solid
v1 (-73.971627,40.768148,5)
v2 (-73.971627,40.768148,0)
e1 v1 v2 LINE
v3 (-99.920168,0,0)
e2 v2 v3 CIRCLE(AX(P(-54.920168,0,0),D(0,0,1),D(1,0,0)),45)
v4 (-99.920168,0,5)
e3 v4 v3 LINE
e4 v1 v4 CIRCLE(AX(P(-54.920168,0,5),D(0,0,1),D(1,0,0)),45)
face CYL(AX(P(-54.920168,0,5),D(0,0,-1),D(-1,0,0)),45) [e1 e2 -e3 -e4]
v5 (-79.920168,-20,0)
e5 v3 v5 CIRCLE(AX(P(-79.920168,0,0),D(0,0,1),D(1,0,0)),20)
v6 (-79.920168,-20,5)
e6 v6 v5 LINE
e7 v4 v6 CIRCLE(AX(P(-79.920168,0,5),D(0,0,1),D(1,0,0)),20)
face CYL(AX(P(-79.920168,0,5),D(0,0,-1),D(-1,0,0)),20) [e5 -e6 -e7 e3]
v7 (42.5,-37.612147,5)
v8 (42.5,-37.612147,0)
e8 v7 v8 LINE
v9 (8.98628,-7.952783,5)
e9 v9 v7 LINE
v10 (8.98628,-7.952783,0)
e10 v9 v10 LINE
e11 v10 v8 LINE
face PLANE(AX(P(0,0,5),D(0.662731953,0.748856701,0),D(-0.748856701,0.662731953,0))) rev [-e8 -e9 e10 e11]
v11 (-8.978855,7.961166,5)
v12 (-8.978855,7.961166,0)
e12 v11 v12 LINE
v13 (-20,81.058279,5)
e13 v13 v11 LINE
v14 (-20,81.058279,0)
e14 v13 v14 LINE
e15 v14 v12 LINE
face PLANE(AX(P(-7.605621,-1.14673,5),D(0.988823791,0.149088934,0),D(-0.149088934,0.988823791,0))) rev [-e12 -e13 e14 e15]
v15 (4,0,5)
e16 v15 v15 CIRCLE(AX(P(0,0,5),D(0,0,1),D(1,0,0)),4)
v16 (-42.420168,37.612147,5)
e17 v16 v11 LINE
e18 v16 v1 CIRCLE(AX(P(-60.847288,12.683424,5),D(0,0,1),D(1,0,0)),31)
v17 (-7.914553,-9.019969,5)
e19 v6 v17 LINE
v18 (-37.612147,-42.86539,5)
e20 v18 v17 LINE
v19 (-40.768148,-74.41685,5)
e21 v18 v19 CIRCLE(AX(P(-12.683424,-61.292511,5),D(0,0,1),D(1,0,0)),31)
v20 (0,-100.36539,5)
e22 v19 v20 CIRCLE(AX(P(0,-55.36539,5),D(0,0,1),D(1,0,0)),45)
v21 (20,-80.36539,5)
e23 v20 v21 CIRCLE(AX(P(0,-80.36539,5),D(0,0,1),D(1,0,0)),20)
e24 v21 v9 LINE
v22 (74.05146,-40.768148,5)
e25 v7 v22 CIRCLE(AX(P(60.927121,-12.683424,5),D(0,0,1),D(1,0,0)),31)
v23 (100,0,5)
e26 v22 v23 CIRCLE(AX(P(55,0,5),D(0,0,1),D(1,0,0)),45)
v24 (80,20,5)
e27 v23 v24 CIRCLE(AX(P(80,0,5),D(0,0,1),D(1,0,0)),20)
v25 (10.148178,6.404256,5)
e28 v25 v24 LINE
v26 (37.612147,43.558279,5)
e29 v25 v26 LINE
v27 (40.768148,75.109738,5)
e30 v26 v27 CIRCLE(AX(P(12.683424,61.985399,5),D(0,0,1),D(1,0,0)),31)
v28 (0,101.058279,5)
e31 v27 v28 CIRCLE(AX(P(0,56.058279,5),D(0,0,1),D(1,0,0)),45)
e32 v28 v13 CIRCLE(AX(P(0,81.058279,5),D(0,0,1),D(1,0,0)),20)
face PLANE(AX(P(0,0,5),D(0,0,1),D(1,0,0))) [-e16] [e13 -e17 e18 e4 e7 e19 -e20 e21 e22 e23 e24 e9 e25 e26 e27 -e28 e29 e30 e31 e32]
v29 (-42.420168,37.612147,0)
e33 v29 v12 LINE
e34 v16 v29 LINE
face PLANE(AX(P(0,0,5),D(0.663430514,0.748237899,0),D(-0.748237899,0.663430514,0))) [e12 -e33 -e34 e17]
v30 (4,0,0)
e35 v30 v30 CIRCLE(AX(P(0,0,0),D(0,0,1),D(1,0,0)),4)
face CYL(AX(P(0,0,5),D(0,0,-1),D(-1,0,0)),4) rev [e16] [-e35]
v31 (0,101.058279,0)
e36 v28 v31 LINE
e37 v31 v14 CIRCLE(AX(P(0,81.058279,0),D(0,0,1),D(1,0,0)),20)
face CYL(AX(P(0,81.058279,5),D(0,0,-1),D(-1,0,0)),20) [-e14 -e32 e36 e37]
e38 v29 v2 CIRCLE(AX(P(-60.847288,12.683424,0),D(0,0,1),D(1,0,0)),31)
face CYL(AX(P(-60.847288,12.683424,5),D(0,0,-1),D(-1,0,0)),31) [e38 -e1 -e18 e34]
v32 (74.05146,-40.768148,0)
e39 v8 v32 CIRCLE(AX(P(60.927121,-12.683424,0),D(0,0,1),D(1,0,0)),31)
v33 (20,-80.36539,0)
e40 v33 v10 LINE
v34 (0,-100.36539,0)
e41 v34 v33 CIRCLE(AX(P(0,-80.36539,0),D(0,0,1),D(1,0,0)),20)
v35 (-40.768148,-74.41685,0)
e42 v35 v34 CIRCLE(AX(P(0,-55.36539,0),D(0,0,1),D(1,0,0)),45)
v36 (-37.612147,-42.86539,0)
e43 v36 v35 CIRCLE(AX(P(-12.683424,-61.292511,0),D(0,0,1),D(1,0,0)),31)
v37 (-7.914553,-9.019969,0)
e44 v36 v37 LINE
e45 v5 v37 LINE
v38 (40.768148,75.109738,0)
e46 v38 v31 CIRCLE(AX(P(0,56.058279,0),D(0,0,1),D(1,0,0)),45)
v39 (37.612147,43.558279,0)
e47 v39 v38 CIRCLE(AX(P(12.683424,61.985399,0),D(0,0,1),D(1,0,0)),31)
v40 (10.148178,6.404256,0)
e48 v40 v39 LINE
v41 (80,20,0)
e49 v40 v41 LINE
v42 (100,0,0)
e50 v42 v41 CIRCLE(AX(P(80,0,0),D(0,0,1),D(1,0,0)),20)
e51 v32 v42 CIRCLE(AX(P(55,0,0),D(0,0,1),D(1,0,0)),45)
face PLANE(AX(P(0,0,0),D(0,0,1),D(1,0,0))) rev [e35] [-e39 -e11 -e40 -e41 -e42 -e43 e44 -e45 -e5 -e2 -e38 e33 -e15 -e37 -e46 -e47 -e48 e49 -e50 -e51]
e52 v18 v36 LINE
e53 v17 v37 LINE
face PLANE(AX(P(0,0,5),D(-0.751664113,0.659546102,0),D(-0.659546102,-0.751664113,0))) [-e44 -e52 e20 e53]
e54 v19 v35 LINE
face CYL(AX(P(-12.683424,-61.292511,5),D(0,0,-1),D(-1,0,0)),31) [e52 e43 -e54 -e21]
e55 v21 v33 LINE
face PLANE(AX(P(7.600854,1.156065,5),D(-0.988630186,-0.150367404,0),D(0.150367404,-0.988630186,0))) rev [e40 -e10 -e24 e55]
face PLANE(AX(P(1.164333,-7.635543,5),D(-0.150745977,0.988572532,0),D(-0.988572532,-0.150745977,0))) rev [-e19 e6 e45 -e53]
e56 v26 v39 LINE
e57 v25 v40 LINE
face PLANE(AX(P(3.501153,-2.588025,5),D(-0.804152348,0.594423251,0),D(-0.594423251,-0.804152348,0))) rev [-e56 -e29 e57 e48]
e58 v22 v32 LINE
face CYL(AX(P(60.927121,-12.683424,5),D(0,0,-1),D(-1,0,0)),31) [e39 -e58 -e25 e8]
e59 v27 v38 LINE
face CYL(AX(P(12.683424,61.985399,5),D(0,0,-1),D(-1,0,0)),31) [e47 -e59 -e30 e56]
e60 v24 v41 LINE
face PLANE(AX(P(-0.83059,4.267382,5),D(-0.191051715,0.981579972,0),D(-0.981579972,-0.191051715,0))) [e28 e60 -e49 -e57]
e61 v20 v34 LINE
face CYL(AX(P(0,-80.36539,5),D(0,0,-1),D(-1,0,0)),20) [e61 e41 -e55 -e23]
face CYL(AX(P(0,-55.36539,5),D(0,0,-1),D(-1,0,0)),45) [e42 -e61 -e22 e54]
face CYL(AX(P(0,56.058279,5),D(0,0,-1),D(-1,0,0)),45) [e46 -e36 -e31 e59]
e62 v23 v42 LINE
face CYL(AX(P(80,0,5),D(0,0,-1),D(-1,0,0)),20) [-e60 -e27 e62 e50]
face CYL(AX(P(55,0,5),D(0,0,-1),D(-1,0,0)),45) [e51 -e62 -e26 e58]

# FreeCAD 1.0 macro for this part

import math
import FreeCAD as App
import Part
import Sketcher

V = App.Vector

doc = App.newDocument("Part")
body = doc.addObject("PartDesign::Body", "Body")

# Sketch on XY plane
sketch1 = body.newObject("Sketcher::SketchObject", "Sketch")
sketch1.AttachmentSupport = (doc.getObject("XY_Plane"), [""])
sketch1.MapMode = "FlatFace"
sketch1.addGeometry(Part.ArcOfCircle(Part.Circle(V(0, 81.058279, 0), V(0, 0, 1), 20), math.radians(90), math.radians(180)), False)
sketch1.addGeometry(Part.LineSegment(V(-20, 81.058279, 0), V(-8.978855, 7.961166, 0)), False)
sketch1.addGeometry(Part.LineSegment(V(-8.978855, 7.961166, 0), V(-42.420168, 37.612147, 0)), False)
sketch1.addGeometry(Part.ArcOfCircle(Part.Circle(V(-60.847288, 12.683424, 0), V(0, 0, 1), 31), math.radians(53.528472), math.radians(115.047266)), False)
sketch1.addGeometry(Part.ArcOfCircle(Part.Circle(V(-54.920168, 0, 0), V(0, 0, 1), 45), math.radians(115.047266), math.radians(180)), False)
sketch1.addGeometry(Part.ArcOfCircle(Part.Circle(V(-79.920168, 0, 0), V(0, 0, 1), 20), math.radians(180), math.radians(270)), False)
sketch1.addGeometry(Part.LineSegment(V(-79.920168, -20, 0), V(-7.914553, -9.019969, 0)), False)
sketch1.addGeometry(Part.LineSegment(V(-7.914553, -9.019969, 0), V(-37.612147, -42.86539, 0)), False)
sketch1.addGeometry(Part.ArcOfCircle(Part.Circle(V(-12.683424, -61.292511, 0), V(0, 0, 1), 31), math.radians(143.528472), math.radians(205.047266)), False)
sketch1.addGeometry(Part.ArcOfCircle(Part.Circle(V(0, -55.36539, 0), V(0, 0, 1), 45), math.radians(-154.952734), math.radians(-90)), False)
sketch1.addGeometry(Part.ArcOfCircle(Part.Circle(V(0, -80.36539, 0), V(0, 0, 1), 20), math.radians(-90), math.radians(0)), False)
sketch1.addGeometry(Part.LineSegment(V(20, -80.36539, 0), V(8.98628, -7.952783, 0)), False)
sketch1.addGeometry(Part.LineSegment(V(8.98628, -7.952783, 0), V(42.5, -37.612147, 0)), False)
sketch1.addGeometry(Part.ArcOfCircle(Part.Circle(V(60.927121, -12.683424, 0), V(0, 0, 1), 31), math.radians(-126.471528), math.radians(-64.952734)), False)
sketch1.addGeometry(Part.ArcOfCircle(Part.Circle(V(55, 0, 0), V(0, 0, 1), 45), math.radians(-64.952734), math.radians(0)), False)
sketch1.addGeometry(Part.ArcOfCircle(Part.Circle(V(80, 0, 0), V(0, 0, 1), 20), math.radians(0), math.radians(90)), False)
sketch1.addGeometry(Part.LineSegment(V(80, 20, 0), V(10.148178, 6.404256, 0)), False)
sketch1.addGeometry(Part.LineSegment(V(10.148178, 6.404256, 0), V(37.612147, 43.558279, 0)), False)
sketch1.addGeometry(Part.ArcOfCircle(Part.Circle(V(12.683424, 61.985399, 0), V(0, 0, 1), 31), math.radians(-36.471528), math.radians(25.047266)), False)
sketch1.addGeometry(Part.ArcOfCircle(Part.Circle(V(0, 56.058279, 0), V(0, 0, 1), 45), math.radians(25.047266), math.radians(90)), False)
sketch1.addGeometry(Part.Circle(V(0, 0, 0), V(0, 0, 1), 4), False)
sketch1.addConstraint(Sketcher.Constraint("Coincident", 0, 2, 1, 1))
sketch1.addConstraint(Sketcher.Constraint("Coincident", 1, 2, 2, 1))
sketch1.addConstraint(Sketcher.Constraint("Coincident", 2, 2, 3, 1))
sketch1.addConstraint(Sketcher.Constraint("Tangent", 3, 2, 4, 1))
sketch1.addConstraint(Sketcher.Constraint("Tangent", 4, 2, 5, 1))
sketch1.addConstraint(Sketcher.Constraint("Coincident", 5, 2, 6, 1))
sketch1.addConstraint(Sketcher.Constraint("Coincident", 6, 2, 7, 1))
sketch1.addConstraint(Sketcher.Constraint("Coincident", 7, 2, 8, 1))
sketch1.addConstraint(Sketcher.Constraint("Tangent", 8, 2, 9, 1))
sketch1.addConstraint(Sketcher.Constraint("Tangent", 9, 2, 10, 1))
sketch1.addConstraint(Sketcher.Constraint("Coincident", 10, 2, 11, 1))
sketch1.addConstraint(Sketcher.Constraint("Coincident", 11, 2, 12, 1))
sketch1.addConstraint(Sketcher.Constraint("Coincident", 12, 2, 13, 1))
sketch1.addConstraint(Sketcher.Constraint("Tangent", 13, 2, 14, 1))
sketch1.addConstraint(Sketcher.Constraint("Tangent", 14, 2, 15, 1))
sketch1.addConstraint(Sketcher.Constraint("Coincident", 15, 2, 16, 1))
sketch1.addConstraint(Sketcher.Constraint("Coincident", 16, 2, 17, 1))
sketch1.addConstraint(Sketcher.Constraint("Tangent", 17, 2, 18, 1))
sketch1.addConstraint(Sketcher.Constraint("Tangent", 18, 2, 19, 1))
sketch1.addConstraint(Sketcher.Constraint("Tangent", 19, 2, 0, 1))
sketch1.addConstraint(Sketcher.Constraint("Coincident", 20, 3, -1, 1))
sketch1.addConstraint(Sketcher.Constraint("Equal", 0, 5))
sketch1.addConstraint(Sketcher.Constraint("Equal", 3, 8))
sketch1.addConstraint(Sketcher.Constraint("Equal", 4, 9))
sketch1.addConstraint(Sketcher.Constraint("Equal", 5, 10))
sketch1.addConstraint(Sketcher.Constraint("Equal", 8, 13))
sketch1.addConstraint(Sketcher.Constraint("Equal", 9, 14))
sketch1.addConstraint(Sketcher.Constraint("Equal", 10, 15))
sketch1.addConstraint(Sketcher.Constraint("Equal", 13, 18))
sketch1.addConstraint(Sketcher.Constraint("Equal", 14, 19))
sketch1.addConstraint(Sketcher.Constraint("PointOnObject", 0, 3, -2))
sketch1.addConstraint(Sketcher.Constraint("PointOnObject", 4, 3, -1))
sketch1.addConstraint(Sketcher.Constraint("PointOnObject", 5, 3, -1))
sketch1.addConstraint(Sketcher.Constraint("PointOnObject", 9, 3, -2))
sketch1.addConstraint(Sketcher.Constraint("PointOnObject", 10, 3, -2))
sketch1.addConstraint(Sketcher.Constraint("PointOnObject", 14, 3, -1))
sketch1.addConstraint(Sketcher.Constraint("PointOnObject", 15, 3, -1))
sketch1.addConstraint(Sketcher.Constraint("PointOnObject", 19, 3, -2))
sketch1.addConstraint(Sketcher.Constraint("Diameter", 20, 8.0))
sketch1.addConstraint(Sketcher.Constraint("Radius", 0, 20.0))
sketch1.addConstraint(Sketcher.Constraint("Radius", 3, 31.0))
sketch1.addConstraint(Sketcher.Constraint("Radius", 4, 45.0))
sketch1.addConstraint(Sketcher.Constraint("DistanceX", -1, 1, 14, 3, 55.0))
sketch1.addConstraint(Sketcher.Constraint("DistanceX", -1, 1, 15, 2, 80.0))
sketch1.addConstraint(Sketcher.Constraint("DistanceY", 19, 3, 0, 2, 25.0))
sketch1.addConstraint(Sketcher.Constraint("DistanceX", 4, 2, 5, 2, 20.0))
sketch1.addConstraint(Sketcher.Constraint("DistanceY", 9, 2, 10, 2, 20.0))
sketch1.addConstraint(Sketcher.Constraint("DistanceX", -1, 1, 12, 2, 42.5))
sketch1.addConstraint(Sketcher.Constraint("DistanceX", 4, 3, 2, 2, 12.5))
sketch1.addConstraint(Sketcher.Constraint("DistanceY", 9, 3, 7, 2, 12.5))
sketch1.addConstraint(Sketcher.Constraint("DistanceY", 17, 2, 19, 3, 12.5))
sketch1.addConstraint(Sketcher.Constraint("DistanceY", 2, 2, 3, 2, 3.156001))
sketch1.addConstraint(Sketcher.Constraint("DistanceX", 8, 2, 7, 2, 3.156001))
sketch1.addConstraint(Sketcher.Constraint("DistanceY", 13, 2, 12, 2, 3.156001))
sketch1.addConstraint(Sketcher.Constraint("DistanceX", 17, 2, 18, 2, 3.156001))
sketch1.addConstraint(Sketcher.Constraint("DistanceY", -1, 1, 18, 3, 61.985399))
sketch1.addConstraint(Sketcher.Constraint("DistanceX", 1, 2, 6, 2, 1.064302))
sketch1.addConstraint(Sketcher.Constraint("Distance", 7, 45.02732))
sketch1.addConstraint(Sketcher.Constraint("Distance", 12, 44.753181))
sketch1.addConstraint(Sketcher.Constraint("Distance", 16, 71.16264))
sketch1.addConstraint(Sketcher.Constraint("DistanceX", 3, 3, -1, 1, 60.847288))
sketch1.addConstraint(Sketcher.Constraint("DistanceY", 8, 3, -1, 1, 61.292511))
sketch1.addConstraint(Sketcher.Constraint("DistanceY", 6, 2, -1, 1, 9.019969))
sketch1.addConstraint(Sketcher.Constraint("DistanceX", -1, 1, 11, 2, 8.98628))
sketch1.addConstraint(Sketcher.Constraint("DistanceY", 1, 2, 2, 2, 29.65098))
pad1 = body.newObject("PartDesign::Pad", "Pad")
pad1.Profile = sketch1
pad1.Length = 5

doc.recompute()
